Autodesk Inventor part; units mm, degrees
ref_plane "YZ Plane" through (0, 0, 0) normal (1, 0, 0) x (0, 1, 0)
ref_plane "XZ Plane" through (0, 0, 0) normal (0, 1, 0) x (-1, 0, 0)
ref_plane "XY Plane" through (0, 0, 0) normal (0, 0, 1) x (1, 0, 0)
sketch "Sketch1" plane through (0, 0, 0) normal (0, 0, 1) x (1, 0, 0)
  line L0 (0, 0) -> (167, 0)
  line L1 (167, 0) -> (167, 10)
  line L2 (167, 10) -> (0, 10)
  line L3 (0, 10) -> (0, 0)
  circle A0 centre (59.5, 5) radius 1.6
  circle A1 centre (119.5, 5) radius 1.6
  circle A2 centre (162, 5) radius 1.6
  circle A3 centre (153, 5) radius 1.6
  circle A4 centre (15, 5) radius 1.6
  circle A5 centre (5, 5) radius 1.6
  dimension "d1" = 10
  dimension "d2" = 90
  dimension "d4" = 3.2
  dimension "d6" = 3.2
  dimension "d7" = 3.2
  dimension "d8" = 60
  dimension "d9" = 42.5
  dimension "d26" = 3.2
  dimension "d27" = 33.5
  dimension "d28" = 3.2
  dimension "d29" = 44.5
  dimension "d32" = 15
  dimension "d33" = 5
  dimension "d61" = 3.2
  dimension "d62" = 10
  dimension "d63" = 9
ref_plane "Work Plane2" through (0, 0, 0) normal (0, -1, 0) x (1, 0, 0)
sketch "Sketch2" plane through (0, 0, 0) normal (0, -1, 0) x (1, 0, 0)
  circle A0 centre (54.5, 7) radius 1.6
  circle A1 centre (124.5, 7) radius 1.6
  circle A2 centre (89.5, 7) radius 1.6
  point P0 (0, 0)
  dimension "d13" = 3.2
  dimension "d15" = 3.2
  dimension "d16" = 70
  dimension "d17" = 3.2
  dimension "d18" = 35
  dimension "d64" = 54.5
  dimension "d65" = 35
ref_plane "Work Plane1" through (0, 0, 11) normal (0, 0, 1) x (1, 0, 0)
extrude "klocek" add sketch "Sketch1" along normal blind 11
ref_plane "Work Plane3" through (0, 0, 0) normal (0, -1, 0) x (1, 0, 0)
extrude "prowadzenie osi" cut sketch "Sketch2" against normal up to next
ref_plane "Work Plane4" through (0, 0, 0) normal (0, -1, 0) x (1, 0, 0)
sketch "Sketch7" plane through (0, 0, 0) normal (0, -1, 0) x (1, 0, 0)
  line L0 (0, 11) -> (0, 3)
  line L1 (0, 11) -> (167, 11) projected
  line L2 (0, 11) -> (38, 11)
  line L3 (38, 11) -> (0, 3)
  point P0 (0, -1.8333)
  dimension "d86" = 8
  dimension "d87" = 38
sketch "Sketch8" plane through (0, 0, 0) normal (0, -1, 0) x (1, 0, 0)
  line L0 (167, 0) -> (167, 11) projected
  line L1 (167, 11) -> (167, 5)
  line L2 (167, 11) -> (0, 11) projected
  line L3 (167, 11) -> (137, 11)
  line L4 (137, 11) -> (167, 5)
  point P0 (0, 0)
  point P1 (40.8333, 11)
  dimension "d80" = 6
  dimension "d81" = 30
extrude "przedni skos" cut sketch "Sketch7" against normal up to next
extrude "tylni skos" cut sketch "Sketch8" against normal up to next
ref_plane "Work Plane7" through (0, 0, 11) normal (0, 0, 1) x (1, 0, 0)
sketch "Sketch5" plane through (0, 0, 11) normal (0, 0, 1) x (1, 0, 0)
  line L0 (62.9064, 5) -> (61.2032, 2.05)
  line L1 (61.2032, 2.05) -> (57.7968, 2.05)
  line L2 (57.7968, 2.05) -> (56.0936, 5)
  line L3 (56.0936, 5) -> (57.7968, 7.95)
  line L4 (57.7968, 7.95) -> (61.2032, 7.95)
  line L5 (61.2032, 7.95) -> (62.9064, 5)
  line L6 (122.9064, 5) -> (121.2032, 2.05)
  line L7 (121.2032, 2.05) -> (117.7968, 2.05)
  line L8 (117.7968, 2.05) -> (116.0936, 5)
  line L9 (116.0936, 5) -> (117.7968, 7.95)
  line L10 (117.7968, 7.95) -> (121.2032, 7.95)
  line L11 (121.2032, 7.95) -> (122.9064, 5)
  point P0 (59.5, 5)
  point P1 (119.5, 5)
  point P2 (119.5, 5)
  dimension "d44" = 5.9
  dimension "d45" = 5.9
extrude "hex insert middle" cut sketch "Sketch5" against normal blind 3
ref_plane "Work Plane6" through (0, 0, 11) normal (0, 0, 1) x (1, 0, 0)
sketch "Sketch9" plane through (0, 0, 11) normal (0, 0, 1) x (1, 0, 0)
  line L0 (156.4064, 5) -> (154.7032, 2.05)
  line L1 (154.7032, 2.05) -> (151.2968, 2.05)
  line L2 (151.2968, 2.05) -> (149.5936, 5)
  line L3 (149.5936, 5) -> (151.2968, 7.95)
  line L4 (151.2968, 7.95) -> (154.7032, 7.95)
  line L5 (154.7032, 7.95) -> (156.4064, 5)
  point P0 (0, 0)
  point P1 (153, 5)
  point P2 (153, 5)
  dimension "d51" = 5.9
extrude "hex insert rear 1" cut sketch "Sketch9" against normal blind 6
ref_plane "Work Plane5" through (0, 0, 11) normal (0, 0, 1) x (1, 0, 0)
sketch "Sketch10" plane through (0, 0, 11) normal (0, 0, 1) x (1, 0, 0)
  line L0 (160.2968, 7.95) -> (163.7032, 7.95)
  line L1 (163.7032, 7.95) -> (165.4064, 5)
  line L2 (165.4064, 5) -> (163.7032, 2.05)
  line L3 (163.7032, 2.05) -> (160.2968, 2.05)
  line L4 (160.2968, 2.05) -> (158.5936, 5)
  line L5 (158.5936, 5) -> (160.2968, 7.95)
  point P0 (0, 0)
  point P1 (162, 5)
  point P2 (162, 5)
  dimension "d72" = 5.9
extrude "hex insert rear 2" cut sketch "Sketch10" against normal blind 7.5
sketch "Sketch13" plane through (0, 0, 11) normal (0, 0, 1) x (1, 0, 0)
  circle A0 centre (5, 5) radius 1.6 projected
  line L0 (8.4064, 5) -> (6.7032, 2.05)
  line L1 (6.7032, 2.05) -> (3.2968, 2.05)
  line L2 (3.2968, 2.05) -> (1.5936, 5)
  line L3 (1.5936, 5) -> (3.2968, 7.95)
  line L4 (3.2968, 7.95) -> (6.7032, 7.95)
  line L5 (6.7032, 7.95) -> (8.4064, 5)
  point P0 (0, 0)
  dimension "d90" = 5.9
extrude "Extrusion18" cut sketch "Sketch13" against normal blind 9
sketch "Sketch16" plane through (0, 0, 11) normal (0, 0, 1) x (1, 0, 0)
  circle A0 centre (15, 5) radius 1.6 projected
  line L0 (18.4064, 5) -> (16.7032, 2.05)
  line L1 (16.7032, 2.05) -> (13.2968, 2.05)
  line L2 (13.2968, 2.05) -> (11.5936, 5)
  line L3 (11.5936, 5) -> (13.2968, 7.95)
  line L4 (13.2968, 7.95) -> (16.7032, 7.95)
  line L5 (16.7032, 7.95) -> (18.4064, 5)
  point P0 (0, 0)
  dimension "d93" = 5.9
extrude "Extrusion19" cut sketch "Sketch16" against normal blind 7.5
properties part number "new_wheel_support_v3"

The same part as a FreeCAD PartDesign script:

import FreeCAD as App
import Part
import Sketcher
from FreeCAD import Vector
Q = App.Units.Quantity


def add_polygon(sketch, points):
    """Adds a closed chain of lines whose ends are joined by coincident constraints."""
    first, n = sketch.GeometryCount, len(points)
    for a, b in zip(points, points[1:] + points[:1]):
        sketch.addGeometry(Part.LineSegment(App.Vector(*a, 0), App.Vector(*b, 0)), False)
    for i in range(n):
        sketch.addConstraint(Sketcher.Constraint("Coincident", first + i, 2, first + (i + 1) % n, 1))

doc = App.newDocument("Part")
body = doc.addObject("PartDesign::Body", "Body")

# Sketch on XY plane
sketch1 = doc.addObject("Sketcher::SketchObject", "Sketch")
body.addObject(sketch1)
sketch1.AttachmentSupport = (doc.XY_Plane, [""])
sketch1.MapMode = "FlatFace"
add_polygon(sketch1, [(0, 10), (0, 0), (167, 0), (167, 10)])  # lines 0-3
sketch1.addGeometry(Part.Circle(Vector(5, 5, 0), Vector(0, 0, 1), 1.6), False)  # 4
sketch1.addGeometry(Part.Circle(Vector(15, 5, 0), Vector(0, 0, 1), 1.6), False)  # 5
sketch1.addGeometry(Part.Circle(Vector(59.5, 5, 0), Vector(0, 0, 1), 1.6), False)  # 6
sketch1.addGeometry(Part.Circle(Vector(119.5, 5, 0), Vector(0, 0, 1), 1.6), False)  # 7
sketch1.addGeometry(Part.Circle(Vector(153, 5, 0), Vector(0, 0, 1), 1.6), False)  # 8
sketch1.addGeometry(Part.Circle(Vector(162, 5, 0), Vector(0, 0, 1), 1.6), False)  # 9
sketch1.addConstraint([
    Sketcher.Constraint("Vertical", 0),
    Sketcher.Constraint("Horizontal", 1),
    Sketcher.Constraint("Vertical", 2),
    Sketcher.Constraint("Horizontal", 3),
    Sketcher.Constraint("Coincident", 0, 2, -1, 1),
    Sketcher.Constraint("Equal", 4, 5),
    Sketcher.Constraint("Equal", 5, 6),
    Sketcher.Constraint("Equal", 6, 7),
    Sketcher.Constraint("Equal", 7, 8),
    Sketcher.Constraint("Equal", 8, 9),
    Sketcher.Constraint("Horizontal", 4, 3, 5, 3),
    Sketcher.Constraint("Horizontal", 5, 3, 6, 3),
    Sketcher.Constraint("Horizontal", 6, 3, 7, 3),
    Sketcher.Constraint("Horizontal", 7, 3, 8, 3),
    Sketcher.Constraint("Horizontal", 8, 3, 9, 3),
    Sketcher.Constraint("Diameter", 4, 3.2),
    Sketcher.Constraint("DistanceY", 0, 2, 0, 1, 10.0),
    Sketcher.Constraint("DistanceX", -1, 1, 4, 3, 5.0),
    Sketcher.Constraint("DistanceY", -1, 1, 4, 3, 5.0),
    Sketcher.Constraint("DistanceX", -1, 1, 5, 3, 15.0),
    Sketcher.Constraint("DistanceX", 6, 3, 7, 3, 60.0),
    Sketcher.Constraint("DistanceX", 8, 3, 9, 3, 9.0),
    Sketcher.Constraint("DistanceX", 9, 3, 1, 2, 5.0),
    Sketcher.Constraint("DistanceX", 5, 3, 6, 3, 44.5),
    Sketcher.Constraint("DistanceX", 7, 3, 8, 3, 33.5),
])
pad1 = doc.addObject("PartDesign::Pad", "Pad")
body.addObject(pad1)
pad1.Profile = sketch1
pad1.Length = 11

# Sketch on XZ plane
sketch2 = doc.addObject("Sketcher::SketchObject", "Sketch001")
body.addObject(sketch2)
sketch2.AttachmentSupport = (doc.XZ_Plane, [""])
sketch2.MapMode = "FlatFace"
sketch2.addGeometry([
    Part.Circle(Vector(54.5, 7, 0), Vector(0, 0, 1), 1.6),
    Part.Circle(Vector(124.5, 7, 0), Vector(0, 0, 1), 1.6),
    Part.Circle(Vector(89.5, 7, 0), Vector(0, 0, 1), 1.6),
], False)
sketch2.addConstraint([
    Sketcher.Constraint("Equal", 0, 1),
    Sketcher.Constraint("Equal", 1, 2),
    Sketcher.Constraint("Horizontal", 0, 3, 1, 3),
    Sketcher.Constraint("Horizontal", 1, 3, 2, 3),
    Sketcher.Constraint("Diameter", 0, 3.2),
    Sketcher.Constraint("DistanceX", 0, 3, 1, 3, 70.0),
    Sketcher.Constraint("DistanceX", 0, 3, 2, 3, 35.0),
    Sketcher.Constraint("DistanceX", -1, 1, 0, 3, 54.5),
    Sketcher.Constraint("DistanceY", -1, 1, 0, 3, 7.0),
])
pocket1 = doc.addObject("PartDesign::Pocket", "Pocket")
body.addObject(pocket1)
pocket1.Profile = sketch2
pocket1.Type = "UpToFirst"

# Sketch on XZ plane
sketch3 = doc.addObject("Sketcher::SketchObject", "Sketch002")
body.addObject(sketch3)
sketch3.AttachmentSupport = (doc.XZ_Plane, [""])
sketch3.MapMode = "FlatFace"
add_polygon(sketch3, [(38, 11), (0, 11), (0, 3)])  # lines 0-2
sketch3.addConstraint([
    Sketcher.Constraint("Horizontal", 0),
    Sketcher.Constraint("Vertical", 1),
    Sketcher.Constraint("PointOnObject", 0, 2, -2),
    Sketcher.Constraint("DistanceX", 0, 2, 0, 1, 38.0),
    Sketcher.Constraint("DistanceY", 1, 2, 1, 1, 8.0),
    Sketcher.Constraint("DistanceY", -1, 1, 0, 2, 11.0),
])
pocket2 = doc.addObject("PartDesign::Pocket", "Pocket001")
body.addObject(pocket2)
pocket2.Profile = sketch3
pocket2.Type = "UpToFirst"

# Sketch on XZ plane
sketch4 = doc.addObject("Sketcher::SketchObject", "Sketch003")
body.addObject(sketch4)
sketch4.AttachmentSupport = (doc.XZ_Plane, [""])
sketch4.MapMode = "FlatFace"
add_polygon(sketch4, [(137, 11), (167, 5), (167, 11)])  # lines 0-2
sketch4.addConstraint([
    Sketcher.Constraint("Vertical", 1),
    Sketcher.Constraint("Horizontal", 2),
    Sketcher.Constraint("DistanceX", 2, 2, 2, 1, 30.0),
    Sketcher.Constraint("DistanceY", 1, 1, 1, 2, 6.0),
    Sketcher.Constraint("DistanceX", -1, 1, 0, 2, 167.0),
    Sketcher.Constraint("DistanceY", -1, 1, 0, 2, 5.0),
])
pocket3 = doc.addObject("PartDesign::Pocket", "Pocket002")
body.addObject(pocket3)
pocket3.Profile = sketch4
pocket3.Type = "UpToFirst"

# Sketch on XY plane
sketch5 = doc.addObject("Sketcher::SketchObject", "Sketch004")
body.addObject(sketch5)
sketch5.AttachmentSupport = (doc.XY_Plane, [""])
sketch5.MapMode = "FlatFace"
sketch5.AttachmentOffset = App.Placement(Vector(0, 0, 11), App.Rotation())
add_polygon(sketch5, [(61.2, 2), (62.9, 5), (61.2, 8), (57.8, 8), (56.1, 5), (57.8, 2)])  # lines 0-5
add_polygon(sketch5, [(121.2, 2), (122.9, 5), (121.2, 8), (117.8, 8), (116.1, 5), (117.8, 2)])  # lines 6-11
sketch5.addConstraint([
    Sketcher.Constraint("Horizontal", 2),
    Sketcher.Constraint("Horizontal", 5),
    Sketcher.Constraint("Horizontal", 8),
    Sketcher.Constraint("Horizontal", 11),
    Sketcher.Constraint("Parallel", 0, 3),
    Sketcher.Constraint("Parallel", 1, 4),
    Sketcher.Constraint("Parallel", 3, 6),
    Sketcher.Constraint("Parallel", 4, 7),
    Sketcher.Constraint("Parallel", 6, 9),
    Sketcher.Constraint("Parallel", 7, 10),
    Sketcher.Constraint("Horizontal", 0, 2, 3, 2),
    Sketcher.Constraint("Horizontal", 3, 2, 6, 2),
    Sketcher.Constraint("Horizontal", 2, 2, 7, 2),
    Sketcher.Constraint("Horizontal", 6, 2, 9, 2),
    Sketcher.Constraint("Horizontal", 5, 2, 10, 2),
    Sketcher.Constraint("Vertical", 2, 2, 4, 2),
    Sketcher.Constraint("Vertical", 1, 2, 5, 2),
    Sketcher.Constraint("Equal", 5, 8),
    Sketcher.Constraint("DistanceY", 4, 2, 2, 2, 5.9),
    Sketcher.Constraint("Angle", 0, Q("59.9998 deg")),
    Sketcher.Constraint("DistanceY", -1, 1, 0, 2, 5.0),
    Sketcher.Constraint("DistanceX", 0, 2, 6, 2, 60.0),
    Sketcher.Constraint("DistanceX", 2, 2, 2, 1, 3.4064),
    Sketcher.Constraint("DistanceX", -1, 1, 0, 2, 62.9064),
])
pocket4 = doc.addObject("PartDesign::Pocket", "Pocket003")
body.addObject(pocket4)
pocket4.Profile = sketch5
pocket4.Length = 3

# Sketch on XY plane
sketch6 = doc.addObject("Sketcher::SketchObject", "Sketch005")
body.addObject(sketch6)
sketch6.AttachmentSupport = (doc.XY_Plane, [""])
sketch6.MapMode = "FlatFace"
sketch6.AttachmentOffset = App.Placement(Vector(0, 0, 11), App.Rotation())
add_polygon(sketch6, [(154.7, 2), (156.4, 5), (154.7, 8), (151.3, 8), (149.6, 5), (151.3, 2)])  # lines 0-5
sketch6.addConstraint([
    Sketcher.Constraint("Horizontal", 2),
    Sketcher.Constraint("Horizontal", 5),
    Sketcher.Constraint("Parallel", 0, 3),
    Sketcher.Constraint("Parallel", 1, 4),
    Sketcher.Constraint("Horizontal", 0, 2, 3, 2),
    Sketcher.Constraint("Vertical", 2, 2, 4, 2),
    Sketcher.Constraint("Vertical", 1, 2, 5, 2),
    Sketcher.Constraint("DistanceY", 4, 2, 2, 2, 5.9),
    Sketcher.Constraint("Angle", 0, Q("59.9998 deg")),
    Sketcher.Constraint("DistanceY", -1, 1, 0, 2, 5.0),
    Sketcher.Constraint("DistanceX", 2, 2, 2, 1, 3.4064),
    Sketcher.Constraint("DistanceX", -1, 1, 0, 2, 156.4064),
])
pocket5 = doc.addObject("PartDesign::Pocket", "Pocket004")
body.addObject(pocket5)
pocket5.Profile = sketch6
pocket5.Length = 6

# Sketch on XY plane
sketch7 = doc.addObject("Sketcher::SketchObject", "Sketch006")
body.addObject(sketch7)
sketch7.AttachmentSupport = (doc.XY_Plane, [""])
sketch7.MapMode = "FlatFace"
sketch7.AttachmentOffset = App.Placement(Vector(0, 0, 11), App.Rotation())
add_polygon(sketch7, [(163.7, 8), (160.3, 8), (158.6, 5), (160.3, 2), (163.7, 2), (165.4, 5)])  # lines 0-5
sketch7.addConstraint([
    Sketcher.Constraint("Horizontal", 0),
    Sketcher.Constraint("Horizontal", 3),
    Sketcher.Constraint("Parallel", 1, 4),
    Sketcher.Constraint("Parallel", 2, 5),
    Sketcher.Constraint("Horizontal", 1, 2, 4, 2),
    Sketcher.Constraint("Vertical", 0, 2, 2, 2),
    Sketcher.Constraint("Vertical", 3, 2, 5, 2),
    Sketcher.Constraint("DistanceY", 2, 2, 0, 2, 5.9),
    Sketcher.Constraint("Angle", 1, Q("-120.0002 deg")),
    Sketcher.Constraint("DistanceY", -1, 1, 1, 2, 5.0),
    Sketcher.Constraint("DistanceX", 0, 2, 0, 1, 3.4064),
    Sketcher.Constraint("DistanceX", -1, 1, 0, 2, 160.2968),
])
pocket6 = doc.addObject("PartDesign::Pocket", "Pocket005")
body.addObject(pocket6)
pocket6.Profile = sketch7
pocket6.Length = 7.5

# Sketch on XY plane
sketch8 = doc.addObject("Sketcher::SketchObject", "Sketch007")
body.addObject(sketch8)
sketch8.AttachmentSupport = (doc.XY_Plane, [""])
sketch8.MapMode = "FlatFace"
sketch8.AttachmentOffset = App.Placement(Vector(0, 0, 11), App.Rotation())
add_polygon(sketch8, [(6.7, 2), (8.4, 5), (6.7, 8), (3.3, 8), (1.6, 5), (3.3, 2)])  # lines 0-5
sketch8.addGeometry(Part.Circle(Vector(5, 5, 0), Vector(0, 0, 1), 1.6), False)  # 6
sketch8.addConstraint([
    Sketcher.Constraint("Horizontal", 2),
    Sketcher.Constraint("Horizontal", 5),
    Sketcher.Constraint("Parallel", 0, 3),
    Sketcher.Constraint("Parallel", 1, 4),
    Sketcher.Constraint("Horizontal", 6, 3, 0, 2),
    Sketcher.Constraint("Horizontal", 0, 2, 3, 2),
    Sketcher.Constraint("Vertical", 2, 2, 4, 2),
    Sketcher.Constraint("Vertical", 1, 2, 5, 2),
    Sketcher.Constraint("Diameter", 6, 3.2),
    Sketcher.Constraint("DistanceY", 4, 2, 2, 2, 5.9),
    Sketcher.Constraint("Angle", 0, Q("59.9998 deg")),
    Sketcher.Constraint("DistanceX", -1, 1, 6, 3, 5.0),
    Sketcher.Constraint("DistanceY", -1, 1, 6, 3, 5.0),
    Sketcher.Constraint("DistanceX", 2, 2, 2, 1, 3.4064),
    Sketcher.Constraint("DistanceX", -1, 1, 0, 2, 8.4064),
])
pocket7 = doc.addObject("PartDesign::Pocket", "Pocket006")
body.addObject(pocket7)
pocket7.Profile = sketch8
pocket7.Length = 9

# Sketch on XY plane
sketch9 = doc.addObject("Sketcher::SketchObject", "Sketch008")
body.addObject(sketch9)
sketch9.AttachmentSupport = (doc.XY_Plane, [""])
sketch9.MapMode = "FlatFace"
sketch9.AttachmentOffset = App.Placement(Vector(0, 0, 11), App.Rotation())
add_polygon(sketch9, [(16.7, 2), (18.4, 5), (16.7, 8), (13.3, 8), (11.6, 5), (13.3, 2)])  # lines 0-5
sketch9.addGeometry(Part.Circle(Vector(15, 5, 0), Vector(0, 0, 1), 1.6), False)  # 6
sketch9.addConstraint([
    Sketcher.Constraint("Horizontal", 2),
    Sketcher.Constraint("Horizontal", 5),
    Sketcher.Constraint("Parallel", 0, 3),
    Sketcher.Constraint("Parallel", 1, 4),
    Sketcher.Constraint("Horizontal", 6, 3, 0, 2),
    Sketcher.Constraint("Horizontal", 0, 2, 3, 2),
    Sketcher.Constraint("Vertical", 2, 2, 4, 2),
    Sketcher.Constraint("Vertical", 1, 2, 5, 2),
    Sketcher.Constraint("Diameter", 6, 3.2),
    Sketcher.Constraint("DistanceY", 4, 2, 2, 2, 5.9),
    Sketcher.Constraint("Angle", 0, Q("59.9998 deg")),
    Sketcher.Constraint("DistanceX", -1, 1, 6, 3, 15.0),
    Sketcher.Constraint("DistanceY", -1, 1, 6, 3, 5.0),
    Sketcher.Constraint("DistanceX", 2, 2, 2, 1, 3.4064),
    Sketcher.Constraint("DistanceX", -1, 1, 0, 2, 18.4064),
])
pocket8 = doc.addObject("PartDesign::Pocket", "Pocket007")
body.addObject(pocket8)
pocket8.Profile = sketch9
pocket8.Length = 7.5

doc.recompute()
